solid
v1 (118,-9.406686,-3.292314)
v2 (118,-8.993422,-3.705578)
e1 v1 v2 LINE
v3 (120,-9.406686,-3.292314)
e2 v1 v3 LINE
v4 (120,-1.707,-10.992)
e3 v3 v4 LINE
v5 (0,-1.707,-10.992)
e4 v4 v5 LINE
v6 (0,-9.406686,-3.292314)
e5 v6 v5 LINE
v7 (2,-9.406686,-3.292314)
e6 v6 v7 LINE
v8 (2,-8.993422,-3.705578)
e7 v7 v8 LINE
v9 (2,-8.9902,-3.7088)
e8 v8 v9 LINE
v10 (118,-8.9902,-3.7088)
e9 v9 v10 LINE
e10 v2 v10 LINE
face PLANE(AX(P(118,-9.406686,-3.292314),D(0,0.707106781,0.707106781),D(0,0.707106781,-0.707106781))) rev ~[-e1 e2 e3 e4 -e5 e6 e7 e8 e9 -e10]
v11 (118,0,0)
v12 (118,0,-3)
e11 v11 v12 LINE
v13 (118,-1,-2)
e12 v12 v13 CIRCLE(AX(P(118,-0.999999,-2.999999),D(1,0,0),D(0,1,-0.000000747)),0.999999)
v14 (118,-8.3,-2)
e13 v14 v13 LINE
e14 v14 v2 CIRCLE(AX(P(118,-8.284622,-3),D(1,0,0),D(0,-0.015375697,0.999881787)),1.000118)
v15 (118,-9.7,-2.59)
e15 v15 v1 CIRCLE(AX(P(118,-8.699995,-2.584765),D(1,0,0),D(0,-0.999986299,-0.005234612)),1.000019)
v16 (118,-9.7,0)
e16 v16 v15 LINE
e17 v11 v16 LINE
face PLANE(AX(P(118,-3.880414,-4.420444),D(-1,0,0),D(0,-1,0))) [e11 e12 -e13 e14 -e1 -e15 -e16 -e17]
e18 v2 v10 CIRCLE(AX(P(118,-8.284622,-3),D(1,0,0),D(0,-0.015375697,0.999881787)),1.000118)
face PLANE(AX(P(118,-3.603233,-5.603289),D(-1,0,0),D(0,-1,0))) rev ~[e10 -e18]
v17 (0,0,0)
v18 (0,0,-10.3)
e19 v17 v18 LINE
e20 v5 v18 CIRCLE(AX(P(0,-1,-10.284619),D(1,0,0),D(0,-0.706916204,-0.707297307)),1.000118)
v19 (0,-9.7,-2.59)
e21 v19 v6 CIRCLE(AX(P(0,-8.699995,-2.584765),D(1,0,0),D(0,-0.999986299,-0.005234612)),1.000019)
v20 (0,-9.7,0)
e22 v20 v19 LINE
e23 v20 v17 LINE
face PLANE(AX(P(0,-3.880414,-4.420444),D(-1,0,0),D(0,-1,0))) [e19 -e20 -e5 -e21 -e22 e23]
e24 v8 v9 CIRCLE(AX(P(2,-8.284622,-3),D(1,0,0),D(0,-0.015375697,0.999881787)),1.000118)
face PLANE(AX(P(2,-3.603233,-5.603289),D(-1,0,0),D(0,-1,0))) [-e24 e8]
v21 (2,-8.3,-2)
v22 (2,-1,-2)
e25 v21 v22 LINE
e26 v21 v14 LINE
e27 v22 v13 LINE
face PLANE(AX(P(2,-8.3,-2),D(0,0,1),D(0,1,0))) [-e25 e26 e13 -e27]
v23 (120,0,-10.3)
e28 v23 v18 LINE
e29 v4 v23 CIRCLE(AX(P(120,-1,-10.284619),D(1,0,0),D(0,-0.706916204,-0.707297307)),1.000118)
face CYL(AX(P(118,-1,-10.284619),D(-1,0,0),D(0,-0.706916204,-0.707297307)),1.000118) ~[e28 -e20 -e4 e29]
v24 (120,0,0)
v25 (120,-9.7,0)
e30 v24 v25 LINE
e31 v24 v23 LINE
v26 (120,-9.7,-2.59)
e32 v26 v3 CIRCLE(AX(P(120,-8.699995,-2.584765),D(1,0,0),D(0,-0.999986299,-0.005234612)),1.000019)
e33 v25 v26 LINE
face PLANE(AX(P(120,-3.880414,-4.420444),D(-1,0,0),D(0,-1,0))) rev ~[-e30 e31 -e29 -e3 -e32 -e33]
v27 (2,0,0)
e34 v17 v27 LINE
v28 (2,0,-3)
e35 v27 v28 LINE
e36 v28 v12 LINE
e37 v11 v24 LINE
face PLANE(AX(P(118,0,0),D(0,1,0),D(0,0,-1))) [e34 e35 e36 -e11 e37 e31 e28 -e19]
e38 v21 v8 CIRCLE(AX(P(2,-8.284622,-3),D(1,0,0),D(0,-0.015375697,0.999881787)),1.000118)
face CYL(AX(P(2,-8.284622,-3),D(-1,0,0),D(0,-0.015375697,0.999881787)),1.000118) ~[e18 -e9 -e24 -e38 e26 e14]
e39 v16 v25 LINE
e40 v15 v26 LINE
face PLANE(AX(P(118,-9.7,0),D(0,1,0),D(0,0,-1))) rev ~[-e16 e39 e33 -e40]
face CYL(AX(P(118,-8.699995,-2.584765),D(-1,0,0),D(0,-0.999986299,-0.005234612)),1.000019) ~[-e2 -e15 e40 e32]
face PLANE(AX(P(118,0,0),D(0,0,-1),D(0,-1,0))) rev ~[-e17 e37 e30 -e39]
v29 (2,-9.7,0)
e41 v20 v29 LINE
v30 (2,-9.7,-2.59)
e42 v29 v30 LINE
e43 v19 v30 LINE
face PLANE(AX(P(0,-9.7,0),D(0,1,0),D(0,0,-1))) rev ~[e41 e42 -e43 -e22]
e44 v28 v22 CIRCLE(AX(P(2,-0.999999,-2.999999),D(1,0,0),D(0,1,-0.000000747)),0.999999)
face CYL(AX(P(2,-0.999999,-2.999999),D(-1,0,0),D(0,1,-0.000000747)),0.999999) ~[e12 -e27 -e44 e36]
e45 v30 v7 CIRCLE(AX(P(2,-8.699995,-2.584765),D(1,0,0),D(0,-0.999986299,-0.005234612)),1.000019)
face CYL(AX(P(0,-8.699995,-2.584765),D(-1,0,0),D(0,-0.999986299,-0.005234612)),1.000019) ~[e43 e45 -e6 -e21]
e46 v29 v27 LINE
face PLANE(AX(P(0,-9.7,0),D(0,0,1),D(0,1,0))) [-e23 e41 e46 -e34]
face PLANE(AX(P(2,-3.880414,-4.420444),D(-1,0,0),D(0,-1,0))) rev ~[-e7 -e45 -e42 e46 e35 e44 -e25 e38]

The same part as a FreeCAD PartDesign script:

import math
import FreeCAD as App
import Part
import Sketcher
from FreeCAD import Vector
Q = App.Units.Quantity

doc = App.newDocument("Part")
params = doc.addObject("Spreadsheet::Sheet", "Params")
for row, (alias, value) in enumerate([
    ("sketch1_width", "9.7 mm"),
    ("sketch1_height", "10.3 mm"),
    ("sketch1_height2", "2.59 mm"),
    ("pad1_length", "2 mm"),
    ("sketch2_radius", "0.999999 mm"),
    ("sketch2_width", "7.3 mm"),
    ("sketch2_height", "7.3 mm"),
    ("sketch2_length", "10.3 mm"),
    ("pad2_length", "116 mm"),
    ("sketch3_width", "9.7 mm"),
    ("sketch3_height", "10.3 mm"),
    ("sketch3_height2", "2.59 mm"),
    ("pad3_length", "2 mm"),
], start=1):
    params.set(f"A{row}", alias)
    params.set(f"B{row}", "=" + value)
    params.setAlias(f"B{row}", alias)

body = doc.addObject("PartDesign::Body", "Body")

sketch1 = doc.addObject("Sketcher::SketchObject", "Sketch")
body.addObject(sketch1)
sketch1.AttachmentSupport = (doc.YZ_Plane, [""])
sketch1.MapMode = "FlatFace"
sketch1.addGeometry(Part.LineSegment(Vector(0, 0, 0), Vector(-9.7, 0, 0)), False)
sketch1.addGeometry(Part.LineSegment(Vector(-9.7, 0, 0), Vector(-9.7, -2.59, 0)), False)
sketch1.addGeometry(Part.ArcOfCircle(Part.Circle(Vector(-8.699995, -2.584765, 0), Vector(0, 0, 1), 1.000019), math.radians(-179.700077), math.radians(-134.965247)), False)
sketch1.addGeometry(Part.LineSegment(Vector(-9.406686, -3.292314, 0), Vector(-1.707, -10.992, 0)), False)
sketch1.addGeometry(Part.ArcOfCircle(Part.Circle(Vector(-1, -10.284619, 0), Vector(0, 0, 1), 1.000118), math.radians(-134.98456), math.radians(-0.881199)), False)
sketch1.addGeometry(Part.LineSegment(Vector(0, -10.3, 0), Vector(0, 0, 0)), False)
sketch1.addConstraint(Sketcher.Constraint("Coincident", 0, 2, 1, 1))
sketch1.addConstraint(Sketcher.Constraint("Coincident", 1, 2, 2, 1))
sketch1.addConstraint(Sketcher.Constraint("Coincident", 2, 2, 3, 1))
sketch1.addConstraint(Sketcher.Constraint("Coincident", 3, 2, 4, 1))
sketch1.addConstraint(Sketcher.Constraint("Coincident", 4, 2, 5, 1))
sketch1.addConstraint(Sketcher.Constraint("Coincident", 5, 2, 0, 1))
sketch1.addConstraint(Sketcher.Constraint("Horizontal", 0))
sketch1.addConstraint(Sketcher.Constraint("Vertical", 1))
sketch1.addConstraint(Sketcher.Constraint("Vertical", 5))
sketch1.addConstraint(Sketcher.Constraint("Coincident", 5, 2, -1, 1))
sketch1.addConstraint(Sketcher.Constraint("Angle", 3, Q("-45 deg")))
sketch1.addConstraint(Sketcher.Constraint("DistanceX", 0, 2, 0, 1, 9.7))
sketch1.addConstraint(Sketcher.Constraint("DistanceY", 5, 1, 5, 2, 10.3))
sketch1.addConstraint(Sketcher.Constraint("DistanceX", 4, 3, -1, 1, 1.0))
sketch1.addConstraint(Sketcher.Constraint("DistanceY", 1, 2, 1, 1, 2.59))
sketch1.addConstraint(Sketcher.Constraint("Radius", 2, 1.000019))
sketch1.addConstraint(Sketcher.Constraint("Radius", 4, 1.000118))
sketch1.addConstraint(Sketcher.Constraint("Distance", 3, 10.889))
sketch1.addConstraint(Sketcher.Constraint("DistanceX", 3, 2, -1, 1, 1.707))
sketch1.setExpression("Constraints[11]", "Params.sketch1_width")
sketch1.setExpression("Constraints[12]", "Params.sketch1_height")
sketch1.setExpression("Constraints[14]", "Params.sketch1_height2")
pad1 = doc.addObject("PartDesign::Pad", "Pad")
body.addObject(pad1)
pad1.Profile = sketch1
pad1.setExpression("Length", "Params.pad1_length")

sketch2 = doc.addObject("Sketcher::SketchObject", "Sketch001")
body.addObject(sketch2)
sketch2.AttachmentSupport = (doc.YZ_Plane, [""])
sketch2.MapMode = "FlatFace"
sketch2.AttachmentOffset = App.Placement(Vector(0, 0, 2), App.Rotation())
sketch2.addGeometry(Part.LineSegment(Vector(0, -10.3, 0), Vector(0, -3, 0)), False)
sketch2.addGeometry(Part.ArcOfCircle(Part.Circle(Vector(-0.999999, -2.999999, 0), Vector(0, 0, 1), 0.999999), math.radians(-0.000043), math.radians(90.000043)), False)
sketch2.addGeometry(Part.LineSegment(Vector(-1, -2, 0), Vector(-8.3, -2, 0)), False)
sketch2.addGeometry(Part.ArcOfCircle(Part.Circle(Vector(-8.284622, -3, 0), Vector(0, 0, 1), 1.000118), math.radians(90.880997), math.radians(225.130534)), False)
sketch2.addGeometry(Part.LineSegment(Vector(-8.9902, -3.7088, 0), Vector(-1.707, -10.992, 0)), False)
sketch2.addGeometry(Part.ArcOfCircle(Part.Circle(Vector(-1, -10.284619, 0), Vector(0, 0, 1), 1.000118), math.radians(-134.98456), math.radians(-0.881199)), False)
sketch2.addConstraint(Sketcher.Constraint("Coincident", 0, 2, 1, 1))
sketch2.addConstraint(Sketcher.Constraint("Coincident", 1, 2, 2, 1))
sketch2.addConstraint(Sketcher.Constraint("Coincident", 2, 2, 3, 1))
sketch2.addConstraint(Sketcher.Constraint("Coincident", 3, 2, 4, 1))
sketch2.addConstraint(Sketcher.Constraint("Coincident", 4, 2, 5, 1))
sketch2.addConstraint(Sketcher.Constraint("Coincident", 5, 2, 0, 1))
sketch2.addConstraint(Sketcher.Constraint("Vertical", 0))
sketch2.addConstraint(Sketcher.Constraint("Horizontal", 2))
sketch2.addConstraint(Sketcher.Constraint("PointOnObject", 0, 2, -2))
sketch2.addConstraint(Sketcher.Constraint("Radius", 1, 0.999999))
sketch2.addConstraint(Sketcher.Constraint("DistanceX", 2, 2, 2, 1, 7.3))
sketch2.addConstraint(Sketcher.Constraint("DistanceY", 0, 1, 0, 2, 7.3))
sketch2.addConstraint(Sketcher.Constraint("DistanceY", 1, 3, -1, 1, 2.999999))
sketch2.addConstraint(Sketcher.Constraint("DistanceY", 3, 3, -1, 1, 3.0))
sketch2.addConstraint(Sketcher.Constraint("DistanceX", 5, 3, -1, 1, 1.0))
sketch2.addConstraint(Sketcher.Constraint("DistanceY", 0, 2, -1, 1, 3.0))
sketch2.addConstraint(Sketcher.Constraint("DistanceX", 1, 2, -1, 1, 1.0))
sketch2.addConstraint(Sketcher.Constraint("Distance", 4, 10.3))
sketch2.addConstraint(Sketcher.Constraint("Radius", 3, 1.000118))
sketch2.addConstraint(Sketcher.Constraint("Radius", 5, 1.000118))
sketch2.addConstraint(Sketcher.Constraint("DistanceX", 4, 2, -1, 1, 1.707))
sketch2.setExpression("Constraints[9]", "Params.sketch2_radius")
sketch2.setExpression("Constraints[10]", "Params.sketch2_width")
sketch2.setExpression("Constraints[11]", "Params.sketch2_height")
sketch2.setExpression("Constraints[17]", "Params.sketch2_length")
pad2 = doc.addObject("PartDesign::Pad", "Pad001")
body.addObject(pad2)
pad2.Profile = sketch2
pad2.setExpression("Length", "Params.pad2_length")

sketch3 = doc.addObject("Sketcher::SketchObject", "Sketch002")
body.addObject(sketch3)
sketch3.AttachmentSupport = (doc.YZ_Plane, [""])
sketch3.MapMode = "FlatFace"
sketch3.AttachmentOffset = App.Placement(Vector(0, 0, 118), App.Rotation())
sketch3.addGeometry(Part.LineSegment(Vector(0, -10.3, 0), Vector(0, 0, 0)), False)
sketch3.addGeometry(Part.LineSegment(Vector(0, 0, 0), Vector(-9.7, 0, 0)), False)
sketch3.addGeometry(Part.LineSegment(Vector(-9.7, 0, 0), Vector(-9.7, -2.59, 0)), False)
sketch3.addGeometry(Part.ArcOfCircle(Part.Circle(Vector(-8.699995, -2.584765, 0), Vector(0, 0, 1), 1.000019), math.radians(-179.700077), math.radians(-134.965247)), False)
sketch3.addGeometry(Part.LineSegment(Vector(-9.406686, -3.292314, 0), Vector(-1.707, -10.992, 0)), False)
sketch3.addGeometry(Part.ArcOfCircle(Part.Circle(Vector(-1, -10.284619, 0), Vector(0, 0, 1), 1.000118), math.radians(-134.98456), math.radians(-0.881199)), False)
sketch3.addConstraint(Sketcher.Constraint("Coincident", 0, 2, 1, 1))
sketch3.addConstraint(Sketcher.Constraint("Coincident", 1, 2, 2, 1))
sketch3.addConstraint(Sketcher.Constraint("Coincident", 2, 2, 3, 1))
sketch3.addConstraint(Sketcher.Constraint("Coincident", 3, 2, 4, 1))
sketch3.addConstraint(Sketcher.Constraint("Coincident", 4, 2, 5, 1))
sketch3.addConstraint(Sketcher.Constraint("Coincident", 5, 2, 0, 1))
sketch3.addConstraint(Sketcher.Constraint("Vertical", 0))
sketch3.addConstraint(Sketcher.Constraint("Horizontal", 1))
sketch3.addConstraint(Sketcher.Constraint("Vertical", 2))
sketch3.addConstraint(Sketcher.Constraint("Coincident", 0, 2, -1, 1))
sketch3.addConstraint(Sketcher.Constraint("Angle", 4, Q("-45 deg")))
sketch3.addConstraint(Sketcher.Constraint("DistanceX", 1, 2, 1, 1, 9.7))
sketch3.addConstraint(Sketcher.Constraint("DistanceY", 0, 1, 0, 2, 10.3))
sketch3.addConstraint(Sketcher.Constraint("DistanceX", 5, 3, -1, 1, 1.0))
sketch3.addConstraint(Sketcher.Constraint("DistanceY", 2, 2, 2, 1, 2.59))
sketch3.addConstraint(Sketcher.Constraint("Radius", 3, 1.000019))
sketch3.addConstraint(Sketcher.Constraint("Radius", 5, 1.000118))
sketch3.addConstraint(Sketcher.Constraint("Distance", 4, 10.889))
sketch3.addConstraint(Sketcher.Constraint("DistanceX", 4, 2, -1, 1, 1.707))
sketch3.setExpression("Constraints[11]", "Params.sketch3_width")
sketch3.setExpression("Constraints[12]", "Params.sketch3_height")
sketch3.setExpression("Constraints[14]", "Params.sketch3_height2")
pad3 = doc.addObject("PartDesign::Pad", "Pad002")
body.addObject(pad3)
pad3.Profile = sketch3
pad3.setExpression("Length", "Params.pad3_length")

doc.recompute()
